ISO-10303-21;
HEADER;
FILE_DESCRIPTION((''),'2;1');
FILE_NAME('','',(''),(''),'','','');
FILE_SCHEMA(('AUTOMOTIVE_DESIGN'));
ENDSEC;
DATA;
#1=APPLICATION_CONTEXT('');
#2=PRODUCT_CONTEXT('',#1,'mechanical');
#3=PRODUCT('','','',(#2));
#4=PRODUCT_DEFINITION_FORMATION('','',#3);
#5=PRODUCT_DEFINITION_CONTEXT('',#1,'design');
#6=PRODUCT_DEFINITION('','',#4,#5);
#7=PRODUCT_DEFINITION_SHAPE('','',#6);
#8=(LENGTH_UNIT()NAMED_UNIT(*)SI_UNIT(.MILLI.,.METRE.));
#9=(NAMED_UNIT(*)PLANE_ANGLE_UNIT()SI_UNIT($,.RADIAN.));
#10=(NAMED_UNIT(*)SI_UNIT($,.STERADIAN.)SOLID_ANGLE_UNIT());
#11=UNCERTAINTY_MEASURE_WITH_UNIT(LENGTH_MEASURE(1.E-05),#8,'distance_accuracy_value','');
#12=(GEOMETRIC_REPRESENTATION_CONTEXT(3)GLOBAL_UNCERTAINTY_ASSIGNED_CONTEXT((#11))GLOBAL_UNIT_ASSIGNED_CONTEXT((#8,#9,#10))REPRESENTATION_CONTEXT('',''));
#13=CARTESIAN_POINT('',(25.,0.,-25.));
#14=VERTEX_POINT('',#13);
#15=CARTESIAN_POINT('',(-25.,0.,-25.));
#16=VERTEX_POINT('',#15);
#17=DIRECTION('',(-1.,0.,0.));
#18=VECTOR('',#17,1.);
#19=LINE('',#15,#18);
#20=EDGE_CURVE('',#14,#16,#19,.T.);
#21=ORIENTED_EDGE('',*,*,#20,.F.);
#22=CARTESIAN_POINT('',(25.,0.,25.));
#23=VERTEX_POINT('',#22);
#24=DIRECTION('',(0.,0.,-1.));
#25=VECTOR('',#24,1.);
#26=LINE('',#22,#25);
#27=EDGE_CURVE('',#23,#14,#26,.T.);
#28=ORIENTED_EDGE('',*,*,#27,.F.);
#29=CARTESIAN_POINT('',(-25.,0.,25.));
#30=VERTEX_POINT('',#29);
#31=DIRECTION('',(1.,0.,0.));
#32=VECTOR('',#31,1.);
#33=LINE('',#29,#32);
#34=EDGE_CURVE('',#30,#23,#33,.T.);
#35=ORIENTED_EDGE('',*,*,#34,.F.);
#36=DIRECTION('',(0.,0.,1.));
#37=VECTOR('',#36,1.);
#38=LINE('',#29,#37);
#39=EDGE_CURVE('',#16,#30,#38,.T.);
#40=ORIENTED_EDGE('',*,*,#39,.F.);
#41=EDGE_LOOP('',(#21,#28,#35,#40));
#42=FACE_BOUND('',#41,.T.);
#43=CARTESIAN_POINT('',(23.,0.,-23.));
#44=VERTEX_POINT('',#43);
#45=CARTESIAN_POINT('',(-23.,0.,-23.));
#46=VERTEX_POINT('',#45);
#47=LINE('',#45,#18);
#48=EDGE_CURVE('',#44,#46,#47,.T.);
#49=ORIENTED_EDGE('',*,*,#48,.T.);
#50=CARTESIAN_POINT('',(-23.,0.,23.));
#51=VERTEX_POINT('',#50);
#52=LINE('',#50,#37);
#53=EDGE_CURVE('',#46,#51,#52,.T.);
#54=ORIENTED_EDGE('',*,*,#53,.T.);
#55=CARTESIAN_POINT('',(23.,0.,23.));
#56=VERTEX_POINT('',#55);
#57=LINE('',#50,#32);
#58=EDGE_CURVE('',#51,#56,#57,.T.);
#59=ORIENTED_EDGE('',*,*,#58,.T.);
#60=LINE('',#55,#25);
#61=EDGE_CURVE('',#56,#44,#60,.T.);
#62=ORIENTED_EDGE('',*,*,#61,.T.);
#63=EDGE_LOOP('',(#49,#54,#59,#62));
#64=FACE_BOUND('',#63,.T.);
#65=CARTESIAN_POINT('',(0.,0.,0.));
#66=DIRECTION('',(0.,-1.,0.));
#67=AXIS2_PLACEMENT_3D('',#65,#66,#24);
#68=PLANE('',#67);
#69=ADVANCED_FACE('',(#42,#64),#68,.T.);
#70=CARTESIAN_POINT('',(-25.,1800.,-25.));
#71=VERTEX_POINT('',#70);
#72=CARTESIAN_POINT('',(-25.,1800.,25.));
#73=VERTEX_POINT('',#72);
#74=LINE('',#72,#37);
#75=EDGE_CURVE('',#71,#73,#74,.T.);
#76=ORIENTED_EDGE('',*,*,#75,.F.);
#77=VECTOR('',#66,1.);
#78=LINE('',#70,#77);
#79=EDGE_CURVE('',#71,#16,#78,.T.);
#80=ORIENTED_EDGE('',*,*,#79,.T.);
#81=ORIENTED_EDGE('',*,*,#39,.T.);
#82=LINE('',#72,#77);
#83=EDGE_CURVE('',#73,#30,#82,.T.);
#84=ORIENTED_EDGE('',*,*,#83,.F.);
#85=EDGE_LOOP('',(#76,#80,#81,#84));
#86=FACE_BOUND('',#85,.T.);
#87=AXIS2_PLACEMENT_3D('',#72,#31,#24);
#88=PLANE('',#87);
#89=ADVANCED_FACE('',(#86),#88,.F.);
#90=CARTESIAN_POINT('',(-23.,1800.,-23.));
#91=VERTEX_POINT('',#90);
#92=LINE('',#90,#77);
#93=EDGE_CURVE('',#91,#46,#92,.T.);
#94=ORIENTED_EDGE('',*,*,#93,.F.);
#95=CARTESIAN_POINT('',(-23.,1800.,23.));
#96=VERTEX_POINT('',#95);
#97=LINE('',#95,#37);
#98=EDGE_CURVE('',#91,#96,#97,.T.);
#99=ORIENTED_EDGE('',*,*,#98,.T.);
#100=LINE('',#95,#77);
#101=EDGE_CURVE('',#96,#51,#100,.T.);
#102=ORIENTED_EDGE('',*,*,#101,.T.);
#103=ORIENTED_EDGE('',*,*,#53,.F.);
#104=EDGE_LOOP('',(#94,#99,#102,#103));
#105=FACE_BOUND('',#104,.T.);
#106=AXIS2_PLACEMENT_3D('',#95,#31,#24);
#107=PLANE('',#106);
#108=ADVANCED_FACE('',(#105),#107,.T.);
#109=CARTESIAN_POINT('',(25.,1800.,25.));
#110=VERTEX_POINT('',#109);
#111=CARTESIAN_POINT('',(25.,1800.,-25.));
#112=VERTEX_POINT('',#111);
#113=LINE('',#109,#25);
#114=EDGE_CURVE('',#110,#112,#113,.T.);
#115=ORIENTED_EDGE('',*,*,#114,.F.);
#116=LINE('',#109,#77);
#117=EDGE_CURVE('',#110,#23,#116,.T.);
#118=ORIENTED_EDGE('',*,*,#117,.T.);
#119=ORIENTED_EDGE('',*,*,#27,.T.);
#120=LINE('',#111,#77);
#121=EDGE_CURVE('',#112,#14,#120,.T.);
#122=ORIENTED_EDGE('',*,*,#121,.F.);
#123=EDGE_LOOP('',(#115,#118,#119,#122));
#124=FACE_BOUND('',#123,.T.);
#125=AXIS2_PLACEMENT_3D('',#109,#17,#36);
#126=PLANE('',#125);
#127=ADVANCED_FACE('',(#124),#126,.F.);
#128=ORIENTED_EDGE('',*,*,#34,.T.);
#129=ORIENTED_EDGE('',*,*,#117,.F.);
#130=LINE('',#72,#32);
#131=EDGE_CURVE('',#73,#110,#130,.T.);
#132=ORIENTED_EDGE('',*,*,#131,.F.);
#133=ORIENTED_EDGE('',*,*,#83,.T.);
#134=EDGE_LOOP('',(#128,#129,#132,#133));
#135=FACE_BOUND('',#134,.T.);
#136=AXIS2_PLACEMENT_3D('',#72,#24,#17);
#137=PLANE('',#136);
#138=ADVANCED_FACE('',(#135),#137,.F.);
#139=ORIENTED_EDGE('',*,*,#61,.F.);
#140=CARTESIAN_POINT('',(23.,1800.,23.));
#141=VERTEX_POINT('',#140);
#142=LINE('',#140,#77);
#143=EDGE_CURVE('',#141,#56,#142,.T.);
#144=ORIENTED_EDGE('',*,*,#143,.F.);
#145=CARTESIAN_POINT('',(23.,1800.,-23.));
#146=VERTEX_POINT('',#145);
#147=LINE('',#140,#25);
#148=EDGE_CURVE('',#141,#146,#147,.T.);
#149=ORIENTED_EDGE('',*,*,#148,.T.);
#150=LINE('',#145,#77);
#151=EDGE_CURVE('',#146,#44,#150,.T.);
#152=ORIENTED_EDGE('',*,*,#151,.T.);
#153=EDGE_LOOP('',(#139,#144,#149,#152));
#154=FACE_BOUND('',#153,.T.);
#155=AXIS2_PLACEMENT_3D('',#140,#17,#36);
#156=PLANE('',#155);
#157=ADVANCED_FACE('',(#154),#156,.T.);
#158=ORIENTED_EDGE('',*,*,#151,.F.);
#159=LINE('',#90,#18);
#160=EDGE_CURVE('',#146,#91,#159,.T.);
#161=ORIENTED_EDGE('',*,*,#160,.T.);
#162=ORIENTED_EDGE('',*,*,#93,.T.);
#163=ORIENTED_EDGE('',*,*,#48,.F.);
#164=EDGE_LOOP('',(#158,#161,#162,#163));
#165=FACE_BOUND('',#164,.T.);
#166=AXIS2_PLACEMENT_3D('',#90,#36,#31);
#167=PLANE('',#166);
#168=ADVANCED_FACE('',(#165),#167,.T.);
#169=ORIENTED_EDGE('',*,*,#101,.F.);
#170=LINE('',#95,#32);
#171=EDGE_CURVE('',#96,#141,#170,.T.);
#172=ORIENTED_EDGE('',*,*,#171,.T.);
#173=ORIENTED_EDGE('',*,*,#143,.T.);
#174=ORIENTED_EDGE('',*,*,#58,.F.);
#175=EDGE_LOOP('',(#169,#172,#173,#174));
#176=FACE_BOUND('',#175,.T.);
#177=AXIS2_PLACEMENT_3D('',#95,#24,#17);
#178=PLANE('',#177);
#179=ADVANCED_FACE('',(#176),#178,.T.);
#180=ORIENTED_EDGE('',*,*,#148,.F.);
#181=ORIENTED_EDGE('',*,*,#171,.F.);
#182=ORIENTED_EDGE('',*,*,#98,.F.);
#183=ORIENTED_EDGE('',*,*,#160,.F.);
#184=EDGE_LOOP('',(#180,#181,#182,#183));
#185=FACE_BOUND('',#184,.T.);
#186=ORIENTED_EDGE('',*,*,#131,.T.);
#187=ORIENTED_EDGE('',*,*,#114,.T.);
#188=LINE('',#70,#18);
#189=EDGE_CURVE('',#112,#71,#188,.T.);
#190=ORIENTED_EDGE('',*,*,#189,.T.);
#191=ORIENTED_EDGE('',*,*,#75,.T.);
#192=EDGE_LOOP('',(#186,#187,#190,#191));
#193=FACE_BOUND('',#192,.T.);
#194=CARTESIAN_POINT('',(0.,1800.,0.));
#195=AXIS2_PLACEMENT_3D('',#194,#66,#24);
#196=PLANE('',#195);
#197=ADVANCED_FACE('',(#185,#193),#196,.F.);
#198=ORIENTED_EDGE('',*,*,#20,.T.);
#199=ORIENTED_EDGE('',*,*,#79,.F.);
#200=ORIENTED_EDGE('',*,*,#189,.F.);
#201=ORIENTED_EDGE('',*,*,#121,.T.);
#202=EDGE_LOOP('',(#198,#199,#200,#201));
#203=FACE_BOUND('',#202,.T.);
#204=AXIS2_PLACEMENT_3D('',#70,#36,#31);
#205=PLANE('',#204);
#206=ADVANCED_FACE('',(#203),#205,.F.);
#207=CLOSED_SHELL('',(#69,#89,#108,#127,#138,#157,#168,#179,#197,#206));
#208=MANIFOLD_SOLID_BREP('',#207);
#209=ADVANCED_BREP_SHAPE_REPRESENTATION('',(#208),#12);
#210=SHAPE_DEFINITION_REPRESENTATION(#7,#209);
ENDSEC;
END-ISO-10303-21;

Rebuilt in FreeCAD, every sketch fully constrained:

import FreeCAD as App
import Part
import Sketcher

V = App.Vector


def add_polygon(sketch, points):
    """Adds a closed chain of lines whose ends are joined by coincident constraints."""
    first, n = sketch.GeometryCount, len(points)
    for a, b in zip(points, points[1:] + points[:1]):
        sketch.addGeometry(Part.LineSegment(App.Vector(*a, 0), App.Vector(*b, 0)), False)
    for i in range(n):
        sketch.addConstraint(Sketcher.Constraint("Coincident", first + i, 2, first + (i + 1) % n, 1))

doc = App.newDocument("Part")
body = doc.addObject("PartDesign::Body", "Body")

sketch1 = body.newObject("Sketcher::SketchObject", "Sketch")
sketch1.AttachmentSupport = (doc.getObject("XZ_Plane"), [""])
sketch1.MapMode = "FlatFace"
add_polygon(sketch1, [(-25, -25), (-25, 25), (25, 25), (25, -25)])
add_polygon(sketch1, [(23, 23), (-23, 23), (-23, -23), (23, -23)])
sketch1.addConstraint([
    Sketcher.Constraint("Vertical", 0),
    Sketcher.Constraint("Horizontal", 1),
    Sketcher.Constraint("Vertical", 2),
    Sketcher.Constraint("Horizontal", 3),
    Sketcher.Constraint("Horizontal", 4),
    Sketcher.Constraint("Vertical", 5),
    Sketcher.Constraint("Horizontal", 6),
    Sketcher.Constraint("Vertical", 7),
    Sketcher.Constraint("Symmetric", 0, 2, 2, 2, -1, 1),
    Sketcher.Constraint("Symmetric", 4, 2, 6, 2, -1, 1),
    Sketcher.Constraint("Equal", 3, 0),
    Sketcher.Constraint("Equal", 6, 5),
    Sketcher.Constraint("DistanceX", 1, 1, 1, 2, 50.0),
    Sketcher.Constraint("DistanceX", 4, 2, 4, 1, 46.0),
])
pad1 = body.newObject("PartDesign::Pad", "Pad")
pad1.Profile = sketch1
pad1.Length = 1800
pad1.Reversed = True

doc.recompute()
